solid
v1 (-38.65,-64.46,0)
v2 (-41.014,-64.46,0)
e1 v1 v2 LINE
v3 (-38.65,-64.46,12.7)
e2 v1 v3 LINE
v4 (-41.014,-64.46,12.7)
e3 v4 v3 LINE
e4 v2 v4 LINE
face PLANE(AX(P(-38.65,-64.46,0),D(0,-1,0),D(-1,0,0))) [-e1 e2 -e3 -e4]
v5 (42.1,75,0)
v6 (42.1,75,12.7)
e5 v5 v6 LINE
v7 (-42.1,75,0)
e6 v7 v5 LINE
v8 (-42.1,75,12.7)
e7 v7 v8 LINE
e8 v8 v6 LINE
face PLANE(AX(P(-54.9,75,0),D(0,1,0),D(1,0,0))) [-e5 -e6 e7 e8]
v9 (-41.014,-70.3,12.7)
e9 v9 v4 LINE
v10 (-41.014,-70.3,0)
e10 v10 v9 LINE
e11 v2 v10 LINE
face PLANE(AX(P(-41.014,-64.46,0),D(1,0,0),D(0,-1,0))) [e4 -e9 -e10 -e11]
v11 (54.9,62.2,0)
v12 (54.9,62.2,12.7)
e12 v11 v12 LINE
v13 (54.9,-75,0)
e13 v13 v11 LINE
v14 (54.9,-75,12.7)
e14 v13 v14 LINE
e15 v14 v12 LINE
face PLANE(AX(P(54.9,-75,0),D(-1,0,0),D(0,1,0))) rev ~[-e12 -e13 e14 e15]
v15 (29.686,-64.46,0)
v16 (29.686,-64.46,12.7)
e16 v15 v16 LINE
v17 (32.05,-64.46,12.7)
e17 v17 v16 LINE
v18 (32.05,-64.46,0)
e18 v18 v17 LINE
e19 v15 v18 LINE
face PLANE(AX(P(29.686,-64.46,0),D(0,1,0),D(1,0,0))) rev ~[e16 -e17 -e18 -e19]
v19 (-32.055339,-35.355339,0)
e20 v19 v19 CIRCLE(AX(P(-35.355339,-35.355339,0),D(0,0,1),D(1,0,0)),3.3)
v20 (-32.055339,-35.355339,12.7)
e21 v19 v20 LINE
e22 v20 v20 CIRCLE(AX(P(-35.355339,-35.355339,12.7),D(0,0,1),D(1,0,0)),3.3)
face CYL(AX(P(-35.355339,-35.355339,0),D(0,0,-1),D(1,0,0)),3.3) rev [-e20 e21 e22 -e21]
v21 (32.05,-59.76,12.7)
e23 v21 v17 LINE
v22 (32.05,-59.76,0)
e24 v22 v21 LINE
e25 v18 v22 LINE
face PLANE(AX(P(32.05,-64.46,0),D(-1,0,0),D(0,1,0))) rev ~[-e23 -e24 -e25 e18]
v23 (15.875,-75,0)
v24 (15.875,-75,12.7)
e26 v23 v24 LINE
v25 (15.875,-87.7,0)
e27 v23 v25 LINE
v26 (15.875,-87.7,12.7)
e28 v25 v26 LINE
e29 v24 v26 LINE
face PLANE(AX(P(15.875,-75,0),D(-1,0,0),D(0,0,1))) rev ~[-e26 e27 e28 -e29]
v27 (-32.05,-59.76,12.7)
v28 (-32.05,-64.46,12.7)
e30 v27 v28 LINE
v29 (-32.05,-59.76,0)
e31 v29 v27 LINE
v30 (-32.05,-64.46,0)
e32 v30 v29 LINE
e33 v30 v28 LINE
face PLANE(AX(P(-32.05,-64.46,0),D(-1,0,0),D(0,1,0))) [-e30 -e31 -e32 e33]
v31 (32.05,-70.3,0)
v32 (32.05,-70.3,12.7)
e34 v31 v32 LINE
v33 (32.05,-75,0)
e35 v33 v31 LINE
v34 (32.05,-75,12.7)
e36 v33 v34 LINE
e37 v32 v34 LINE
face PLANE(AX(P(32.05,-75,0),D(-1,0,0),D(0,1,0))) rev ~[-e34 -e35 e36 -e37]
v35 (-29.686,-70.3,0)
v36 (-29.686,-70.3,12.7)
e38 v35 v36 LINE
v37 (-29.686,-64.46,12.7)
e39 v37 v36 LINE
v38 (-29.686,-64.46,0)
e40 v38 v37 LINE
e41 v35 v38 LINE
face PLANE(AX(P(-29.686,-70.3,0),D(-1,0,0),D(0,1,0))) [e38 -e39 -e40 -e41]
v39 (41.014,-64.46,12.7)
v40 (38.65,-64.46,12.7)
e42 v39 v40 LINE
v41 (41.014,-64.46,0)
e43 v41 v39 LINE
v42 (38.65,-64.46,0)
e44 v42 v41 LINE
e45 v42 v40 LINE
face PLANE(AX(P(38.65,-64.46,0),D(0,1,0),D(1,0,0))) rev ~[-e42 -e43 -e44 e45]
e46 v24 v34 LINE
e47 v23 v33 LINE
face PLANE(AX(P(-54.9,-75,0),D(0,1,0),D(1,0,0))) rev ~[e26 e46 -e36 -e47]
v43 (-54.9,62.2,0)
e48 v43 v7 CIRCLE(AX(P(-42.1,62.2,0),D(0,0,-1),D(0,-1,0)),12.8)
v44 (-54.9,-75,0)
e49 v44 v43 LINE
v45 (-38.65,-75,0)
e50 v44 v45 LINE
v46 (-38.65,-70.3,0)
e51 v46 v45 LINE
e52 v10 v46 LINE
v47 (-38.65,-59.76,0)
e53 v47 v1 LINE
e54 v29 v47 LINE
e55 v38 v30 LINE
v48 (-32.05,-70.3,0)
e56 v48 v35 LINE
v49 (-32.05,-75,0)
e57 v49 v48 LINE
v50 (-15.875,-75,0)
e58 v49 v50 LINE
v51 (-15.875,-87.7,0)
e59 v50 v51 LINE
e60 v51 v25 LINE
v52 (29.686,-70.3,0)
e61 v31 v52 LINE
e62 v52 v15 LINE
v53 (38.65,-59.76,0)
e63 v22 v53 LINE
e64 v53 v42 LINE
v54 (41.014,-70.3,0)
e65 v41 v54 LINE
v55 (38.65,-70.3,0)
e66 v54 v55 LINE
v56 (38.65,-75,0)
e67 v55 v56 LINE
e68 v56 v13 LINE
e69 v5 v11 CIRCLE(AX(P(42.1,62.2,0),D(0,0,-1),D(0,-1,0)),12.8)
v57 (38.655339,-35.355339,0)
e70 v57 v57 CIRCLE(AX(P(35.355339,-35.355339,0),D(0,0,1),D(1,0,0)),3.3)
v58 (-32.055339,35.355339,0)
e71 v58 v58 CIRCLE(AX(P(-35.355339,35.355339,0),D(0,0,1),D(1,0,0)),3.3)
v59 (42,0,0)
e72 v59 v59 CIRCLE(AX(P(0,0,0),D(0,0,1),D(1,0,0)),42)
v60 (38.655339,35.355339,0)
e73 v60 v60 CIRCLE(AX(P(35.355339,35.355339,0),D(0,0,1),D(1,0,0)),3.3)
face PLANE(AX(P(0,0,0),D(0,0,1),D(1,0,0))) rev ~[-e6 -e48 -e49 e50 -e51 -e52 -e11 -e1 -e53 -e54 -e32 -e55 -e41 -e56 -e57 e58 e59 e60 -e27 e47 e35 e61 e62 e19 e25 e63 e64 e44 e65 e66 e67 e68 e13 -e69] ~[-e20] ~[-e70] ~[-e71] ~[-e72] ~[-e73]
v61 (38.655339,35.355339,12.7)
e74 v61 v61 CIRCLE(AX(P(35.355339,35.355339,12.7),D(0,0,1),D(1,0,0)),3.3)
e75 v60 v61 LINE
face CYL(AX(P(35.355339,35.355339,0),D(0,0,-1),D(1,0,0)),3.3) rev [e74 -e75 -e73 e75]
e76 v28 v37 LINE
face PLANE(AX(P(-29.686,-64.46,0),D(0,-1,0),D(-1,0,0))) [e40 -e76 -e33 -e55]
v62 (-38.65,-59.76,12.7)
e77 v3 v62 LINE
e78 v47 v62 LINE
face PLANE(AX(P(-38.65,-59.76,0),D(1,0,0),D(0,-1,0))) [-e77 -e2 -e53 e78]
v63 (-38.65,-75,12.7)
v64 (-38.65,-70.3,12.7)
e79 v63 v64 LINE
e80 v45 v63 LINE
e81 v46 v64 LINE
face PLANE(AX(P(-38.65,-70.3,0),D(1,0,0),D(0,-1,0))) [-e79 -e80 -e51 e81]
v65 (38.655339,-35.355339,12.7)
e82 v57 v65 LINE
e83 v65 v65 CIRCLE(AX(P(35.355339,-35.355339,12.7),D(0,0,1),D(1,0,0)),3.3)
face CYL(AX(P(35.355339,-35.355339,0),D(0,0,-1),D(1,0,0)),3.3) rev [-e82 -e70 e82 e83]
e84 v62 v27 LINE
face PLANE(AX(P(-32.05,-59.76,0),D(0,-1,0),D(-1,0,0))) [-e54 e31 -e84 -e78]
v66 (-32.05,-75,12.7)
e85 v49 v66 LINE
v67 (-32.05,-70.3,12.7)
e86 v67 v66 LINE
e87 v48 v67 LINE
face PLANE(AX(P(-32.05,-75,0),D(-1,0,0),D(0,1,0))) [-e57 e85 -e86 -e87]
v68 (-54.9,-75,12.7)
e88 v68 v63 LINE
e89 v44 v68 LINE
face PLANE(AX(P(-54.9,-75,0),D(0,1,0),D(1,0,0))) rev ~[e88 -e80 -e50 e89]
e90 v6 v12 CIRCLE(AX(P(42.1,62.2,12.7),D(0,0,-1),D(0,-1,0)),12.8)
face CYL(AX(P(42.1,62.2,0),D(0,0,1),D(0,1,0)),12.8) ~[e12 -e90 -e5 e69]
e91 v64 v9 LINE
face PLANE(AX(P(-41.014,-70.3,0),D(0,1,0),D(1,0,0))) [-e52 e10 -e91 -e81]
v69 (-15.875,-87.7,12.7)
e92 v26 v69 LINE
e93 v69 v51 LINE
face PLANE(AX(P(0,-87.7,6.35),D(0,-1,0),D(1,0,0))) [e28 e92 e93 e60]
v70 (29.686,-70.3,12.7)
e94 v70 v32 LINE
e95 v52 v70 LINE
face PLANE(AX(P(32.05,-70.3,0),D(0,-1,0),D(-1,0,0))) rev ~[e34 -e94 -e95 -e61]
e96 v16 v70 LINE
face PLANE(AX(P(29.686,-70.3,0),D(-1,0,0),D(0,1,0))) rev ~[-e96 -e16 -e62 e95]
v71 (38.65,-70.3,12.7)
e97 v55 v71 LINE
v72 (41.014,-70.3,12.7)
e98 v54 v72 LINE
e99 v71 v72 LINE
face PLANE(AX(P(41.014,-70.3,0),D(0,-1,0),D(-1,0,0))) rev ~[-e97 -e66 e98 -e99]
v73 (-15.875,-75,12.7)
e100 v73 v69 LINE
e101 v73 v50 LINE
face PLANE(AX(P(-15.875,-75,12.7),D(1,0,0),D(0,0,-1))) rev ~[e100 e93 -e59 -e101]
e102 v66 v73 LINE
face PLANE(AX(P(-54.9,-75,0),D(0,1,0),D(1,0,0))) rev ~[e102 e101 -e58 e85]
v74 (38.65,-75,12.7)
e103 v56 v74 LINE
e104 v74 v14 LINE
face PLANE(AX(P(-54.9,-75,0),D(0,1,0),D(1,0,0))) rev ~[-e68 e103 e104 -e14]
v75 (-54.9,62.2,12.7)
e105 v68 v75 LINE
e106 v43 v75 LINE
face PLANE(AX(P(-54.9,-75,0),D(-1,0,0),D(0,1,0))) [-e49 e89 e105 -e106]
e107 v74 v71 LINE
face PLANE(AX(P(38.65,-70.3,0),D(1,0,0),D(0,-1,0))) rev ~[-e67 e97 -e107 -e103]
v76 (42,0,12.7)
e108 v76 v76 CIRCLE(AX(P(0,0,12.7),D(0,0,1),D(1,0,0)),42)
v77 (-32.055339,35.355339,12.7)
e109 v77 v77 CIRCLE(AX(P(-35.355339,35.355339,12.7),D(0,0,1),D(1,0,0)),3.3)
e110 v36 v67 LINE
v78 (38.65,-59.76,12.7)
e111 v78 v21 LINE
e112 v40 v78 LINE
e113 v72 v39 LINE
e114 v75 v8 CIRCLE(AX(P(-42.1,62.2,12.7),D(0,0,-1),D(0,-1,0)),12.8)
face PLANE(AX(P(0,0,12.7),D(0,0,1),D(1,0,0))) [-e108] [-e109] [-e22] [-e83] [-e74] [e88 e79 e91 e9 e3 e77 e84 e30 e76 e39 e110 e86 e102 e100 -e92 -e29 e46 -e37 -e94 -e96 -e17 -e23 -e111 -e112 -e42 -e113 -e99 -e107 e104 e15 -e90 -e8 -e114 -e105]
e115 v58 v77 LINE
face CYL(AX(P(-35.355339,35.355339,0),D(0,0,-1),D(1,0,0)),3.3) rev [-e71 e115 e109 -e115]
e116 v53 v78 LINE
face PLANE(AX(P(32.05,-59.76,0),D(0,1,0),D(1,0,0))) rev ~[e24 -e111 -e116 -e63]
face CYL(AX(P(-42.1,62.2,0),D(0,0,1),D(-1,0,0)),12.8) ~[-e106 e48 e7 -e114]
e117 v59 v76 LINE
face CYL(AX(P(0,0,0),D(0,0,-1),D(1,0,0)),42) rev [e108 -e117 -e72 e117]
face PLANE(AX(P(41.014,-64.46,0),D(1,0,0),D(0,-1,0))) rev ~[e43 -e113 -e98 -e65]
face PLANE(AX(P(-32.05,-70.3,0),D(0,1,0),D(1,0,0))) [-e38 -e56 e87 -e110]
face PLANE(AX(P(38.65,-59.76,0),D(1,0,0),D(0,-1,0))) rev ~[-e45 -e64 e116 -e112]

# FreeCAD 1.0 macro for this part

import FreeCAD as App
import Part
import Sketcher
Q = App.Units.Quantity


def edges_at(feature, points):
    """Names of the edges that pass closest to the given points."""
    edges = feature.Shape.Edges
    near = lambda p: min(range(len(edges)), key=lambda i: edges[i].distToShape(Part.Vertex(*p))[0])
    return sorted({f"Edge{near(p) + 1}" for p in points})

doc = App.newDocument("Part")
body = doc.addObject("PartDesign::Body", "Body")

# Sketch on XY plane
sketch1 = body.newObject("Sketcher::SketchObject", "Sketch")
sketch1.AttachmentSupport = (doc.getObject("XY_Plane"), [""])
sketch1.MapMode = "FlatFace"
sketch1.addGeometry(Part.LineSegment(App.Vector(-54.9, 75, 0), App.Vector(-54.9, -75, 0)), False)
sketch1.addGeometry(Part.LineSegment(App.Vector(-54.9, -75, 0), App.Vector(54.9, -75, 0)), False)
sketch1.addGeometry(Part.LineSegment(App.Vector(54.9, -75, 0), App.Vector(54.9, 75, 0)), False)
sketch1.addGeometry(Part.LineSegment(App.Vector(54.9, 75, 0), App.Vector(-54.9, 75, 0)), False)
sketch1.addGeometry(Part.Circle(App.Vector(-35.4, -35.4, 0), App.Vector(0, 0, 1), 3.3), False)
sketch1.addGeometry(Part.Circle(App.Vector(35.4, -35.4, 0), App.Vector(0, 0, 1), 3.3), False)
sketch1.addGeometry(Part.Circle(App.Vector(-35.4, 35.4, 0), App.Vector(0, 0, 1), 3.3), False)
sketch1.addGeometry(Part.Circle(App.Vector(0, 0, 0), App.Vector(0, 0, 1), 42), False)
sketch1.addGeometry(Part.Circle(App.Vector(35.4, 35.4, 0), App.Vector(0, 0, 1), 3.3), False)
sketch1.addConstraint(Sketcher.Constraint("Coincident", 0, 2, 1, 1))
sketch1.addConstraint(Sketcher.Constraint("Coincident", 1, 2, 2, 1))
sketch1.addConstraint(Sketcher.Constraint("Coincident", 2, 2, 3, 1))
sketch1.addConstraint(Sketcher.Constraint("Coincident", 3, 2, 0, 1))
sketch1.addConstraint(Sketcher.Constraint("Vertical", 0))
sketch1.addConstraint(Sketcher.Constraint("Horizontal", 1))
sketch1.addConstraint(Sketcher.Constraint("Vertical", 2))
sketch1.addConstraint(Sketcher.Constraint("Horizontal", 3))
sketch1.addConstraint(Sketcher.Constraint("Coincident", 7, 3, -1, 1))
sketch1.addConstraint(Sketcher.Constraint("Equal", 4, 5))
sketch1.addConstraint(Sketcher.Constraint("Equal", 5, 6))
sketch1.addConstraint(Sketcher.Constraint("Equal", 6, 8))
sketch1.addConstraint(Sketcher.Constraint("Symmetric", 5, 3, 6, 3, -1, 1))
sketch1.addConstraint(Sketcher.Constraint("Symmetric", 4, 3, 8, 3, -1, 1))
sketch1.addConstraint(Sketcher.Constraint("Symmetric", 0, 2, 2, 2, -1, 1))
sketch1.addConstraint(Sketcher.Constraint("Symmetric", 4, 3, 5, 3, -2))
sketch1.addConstraint(Sketcher.Constraint("Diameter", 7, Q("84 mm")))
sketch1.addConstraint(Sketcher.Constraint("Diameter", 4, Q("6.6 mm")))
sketch1.addConstraint(Sketcher.Constraint("DistanceY", 0, 2, 0, 1, Q("150 mm")))
sketch1.addConstraint(Sketcher.Constraint("DistanceX", 1, 1, 1, 2, Q("109.8 mm")))
sketch1.addConstraint(Sketcher.Constraint("DistanceX", 4, 3, -1, 1, Q("35.355339 mm")))
sketch1.addConstraint(Sketcher.Constraint("DistanceY", 4, 3, -1, 1, Q("35.355339 mm")))
pad1 = body.newObject("PartDesign::Pad", "Pad")
pad1.Profile = sketch1
pad1.Length = 12.7

# Sketch on XY plane
sketch2 = body.newObject("Sketcher::SketchObject", "Sketch001")
sketch2.AttachmentSupport = (doc.getObject("XY_Plane"), [""])
sketch2.MapMode = "FlatFace"
sketch2.addGeometry(Part.LineSegment(App.Vector(38.6, -75, 0), App.Vector(32, -75, 0)), False)
sketch2.addGeometry(Part.LineSegment(App.Vector(32, -75, 0), App.Vector(32, -70.3, 0)), False)
sketch2.addGeometry(Part.LineSegment(App.Vector(32, -70.3, 0), App.Vector(29.7, -70.3, 0)), False)
sketch2.addGeometry(Part.LineSegment(App.Vector(29.7, -70.3, 0), App.Vector(29.7, -64.5, 0)), False)
sketch2.addGeometry(Part.LineSegment(App.Vector(29.7, -64.5, 0), App.Vector(32, -64.5, 0)), False)
sketch2.addGeometry(Part.LineSegment(App.Vector(32, -64.5, 0), App.Vector(32, -59.8, 0)), False)
sketch2.addGeometry(Part.LineSegment(App.Vector(32, -59.8, 0), App.Vector(38.6, -59.8, 0)), False)
sketch2.addGeometry(Part.LineSegment(App.Vector(38.6, -59.8, 0), App.Vector(38.6, -64.5, 0)), False)
sketch2.addGeometry(Part.LineSegment(App.Vector(38.6, -64.5, 0), App.Vector(41, -64.5, 0)), False)
sketch2.addGeometry(Part.LineSegment(App.Vector(41, -64.5, 0), App.Vector(41, -70.3, 0)), False)
sketch2.addGeometry(Part.LineSegment(App.Vector(41, -70.3, 0), App.Vector(38.6, -70.3, 0)), False)
sketch2.addGeometry(Part.LineSegment(App.Vector(38.6, -70.3, 0), App.Vector(38.6, -75, 0)), False)
sketch2.addGeometry(Part.LineSegment(App.Vector(-32, -70.3, 0), App.Vector(-32, -75, 0)), False)
sketch2.addGeometry(Part.LineSegment(App.Vector(-32, -75, 0), App.Vector(-38.6, -75, 0)), False)
sketch2.addGeometry(Part.LineSegment(App.Vector(-38.6, -75, 0), App.Vector(-38.6, -70.3, 0)), False)
sketch2.addGeometry(Part.LineSegment(App.Vector(-38.6, -70.3, 0), App.Vector(-41, -70.3, 0)), False)
sketch2.addGeometry(Part.LineSegment(App.Vector(-41, -70.3, 0), App.Vector(-41, -64.5, 0)), False)
sketch2.addGeometry(Part.LineSegment(App.Vector(-41, -64.5, 0), App.Vector(-38.6, -64.5, 0)), False)
sketch2.addGeometry(Part.LineSegment(App.Vector(-38.6, -64.5, 0), App.Vector(-38.6, -59.8, 0)), False)
sketch2.addGeometry(Part.LineSegment(App.Vector(-38.6, -59.8, 0), App.Vector(-32, -59.8, 0)), False)
sketch2.addGeometry(Part.LineSegment(App.Vector(-32, -59.8, 0), App.Vector(-32, -64.5, 0)), False)
sketch2.addGeometry(Part.LineSegment(App.Vector(-32, -64.5, 0), App.Vector(-29.7, -64.5, 0)), False)
sketch2.addGeometry(Part.LineSegment(App.Vector(-29.7, -64.5, 0), App.Vector(-29.7, -70.3, 0)), False)
sketch2.addGeometry(Part.LineSegment(App.Vector(-29.7, -70.3, 0), App.Vector(-32, -70.3, 0)), False)
sketch2.addConstraint(Sketcher.Constraint("Coincident", 0, 2, 1, 1))
sketch2.addConstraint(Sketcher.Constraint("Coincident", 1, 2, 2, 1))
sketch2.addConstraint(Sketcher.Constraint("Coincident", 2, 2, 3, 1))
sketch2.addConstraint(Sketcher.Constraint("Coincident", 3, 2, 4, 1))
sketch2.addConstraint(Sketcher.Constraint("Coincident", 4, 2, 5, 1))
sketch2.addConstraint(Sketcher.Constraint("Coincident", 5, 2, 6, 1))
sketch2.addConstraint(Sketcher.Constraint("Coincident", 6, 2, 7, 1))
sketch2.addConstraint(Sketcher.Constraint("Coincident", 7, 2, 8, 1))
sketch2.addConstraint(Sketcher.Constraint("Coincident", 8, 2, 9, 1))
sketch2.addConstraint(Sketcher.Constraint("Coincident", 9, 2, 10, 1))
sketch2.addConstraint(Sketcher.Constraint("Coincident", 10, 2, 11, 1))
sketch2.addConstraint(Sketcher.Constraint("Coincident", 11, 2, 0, 1))
sketch2.addConstraint(Sketcher.Constraint("Coincident", 12, 2, 13, 1))
sketch2.addConstraint(Sketcher.Constraint("Coincident", 13, 2, 14, 1))
sketch2.addConstraint(Sketcher.Constraint("Coincident", 14, 2, 15, 1))
sketch2.addConstraint(Sketcher.Constraint("Coincident", 15, 2, 16, 1))
sketch2.addConstraint(Sketcher.Constraint("Coincident", 16, 2, 17, 1))
sketch2.addConstraint(Sketcher.Constraint("Coincident", 17, 2, 18, 1))
sketch2.addConstraint(Sketcher.Constraint("Coincident", 18, 2, 19, 1))
sketch2.addConstraint(Sketcher.Constraint("Coincident", 19, 2, 20, 1))
sketch2.addConstraint(Sketcher.Constraint("Coincident", 20, 2, 21, 1))
sketch2.addConstraint(Sketcher.Constraint("Coincident", 21, 2, 22, 1))
sketch2.addConstraint(Sketcher.Constraint("Coincident", 22, 2, 23, 1))
sketch2.addConstraint(Sketcher.Constraint("Coincident", 23, 2, 12, 1))
sketch2.addConstraint(Sketcher.Constraint("Horizontal", 0))
sketch2.addConstraint(Sketcher.Constraint("Vertical", 1))
sketch2.addConstraint(Sketcher.Constraint("Horizontal", 2))
sketch2.addConstraint(Sketcher.Constraint("Vertical", 3))
sketch2.addConstraint(Sketcher.Constraint("Horizontal", 4))
sketch2.addConstraint(Sketcher.Constraint("Vertical", 5))
sketch2.addConstraint(Sketcher.Constraint("Horizontal", 6))
sketch2.addConstraint(Sketcher.Constraint("Vertical", 7))
sketch2.addConstraint(Sketcher.Constraint("Horizontal", 8))
sketch2.addConstraint(Sketcher.Constraint("Vertical", 9))
sketch2.addConstraint(Sketcher.Constraint("Horizontal", 10))
sketch2.addConstraint(Sketcher.Constraint("Vertical", 11))
sketch2.addConstraint(Sketcher.Constraint("Vertical", 12))
sketch2.addConstraint(Sketcher.Constraint("Horizontal", 13))
sketch2.addConstraint(Sketcher.Constraint("Vertical", 14))
sketch2.addConstraint(Sketcher.Constraint("Horizontal", 15))
sketch2.addConstraint(Sketcher.Constraint("Vertical", 16))
sketch2.addConstraint(Sketcher.Constraint("Horizontal", 17))
sketch2.addConstraint(Sketcher.Constraint("Vertical", 18))
sketch2.addConstraint(Sketcher.Constraint("Horizontal", 19))
sketch2.addConstraint(Sketcher.Constraint("Vertical", 20))
sketch2.addConstraint(Sketcher.Constraint("Horizontal", 21))
sketch2.addConstraint(Sketcher.Constraint("Vertical", 22))
sketch2.addConstraint(Sketcher.Constraint("Horizontal", 23))
sketch2.addConstraint(Sketcher.Constraint("Symmetric", 0, 2, 12, 2, -2))
sketch2.addConstraint(Sketcher.Constraint("Symmetric", 10, 2, 14, 2, -2))
sketch2.addConstraint(Sketcher.Constraint("Symmetric", 8, 2, 16, 2, -2))
sketch2.addConstraint(Sketcher.Constraint("Symmetric", 6, 2, 18, 2, -2))
sketch2.addConstraint(Sketcher.Constraint("Symmetric", 4, 2, 20, 2, -2))
sketch2.addConstraint(Sketcher.Constraint("Symmetric", 2, 2, 22, 2, -2))
sketch2.addConstraint(Sketcher.Constraint("Horizontal", 4, 2, 7, 2))
sketch2.addConstraint(Sketcher.Constraint("Horizontal", 2, 2, 9, 2))
sketch2.addConstraint(Sketcher.Constraint("Vertical", 1, 2, 4, 2))
sketch2.addConstraint(Sketcher.Constraint("Vertical", 7, 2, 10, 2))
sketch2.addConstraint(Sketcher.Constraint("Equal", 4, 8))
sketch2.addConstraint(Sketcher.Constraint("Equal", 1, 5))
sketch2.addConstraint(Sketcher.Constraint("DistanceX", 0, 2, 0, 1, Q("6.6 mm")))
sketch2.addConstraint(Sketcher.Constraint("DistanceY", 1, 1, 1, 2, Q("4.7 mm")))
sketch2.addConstraint(Sketcher.Constraint("DistanceY", 0, 2, -1, 1, Q("75 mm")))
sketch2.addConstraint(Sketcher.Constraint("DistanceY", 3, 1, 3, 2, Q("5.84 mm")))
sketch2.addConstraint(Sketcher.Constraint("DistanceX", 12, 2, 0, 2, Q("64.1 mm")))
sketch2.addConstraint(Sketcher.Constraint("DistanceX", 2, 2, 2, 1, Q("2.364 mm")))
pocket1 = body.newObject("PartDesign::Pocket", "Pocket")
pocket1.Profile = sketch2
pocket1.Type = "ThroughAll"
pocket1.Reversed = True

# Sketch on XZ plane
sketch3 = body.newObject("Sketcher::SketchObject", "Sketch002")
sketch3.AttachmentSupport = (doc.getObject("XZ_Plane"), [""])
sketch3.MapMode = "FlatFace"
sketch3.AttachmentOffset = App.Placement(App.Vector(0, 0, 75), App.Rotation())
sketch3.addGeometry(Part.LineSegment(App.Vector(16, 0, 0), App.Vector(16, 13, 0)), False)
sketch3.addGeometry(Part.LineSegment(App.Vector(16, 13, 0), App.Vector(-16, 13, 0)), False)
sketch3.addGeometry(Part.LineSegment(App.Vector(-16, 13, 0), App.Vector(-16, 0, 0)), False)
sketch3.addGeometry(Part.LineSegment(App.Vector(-16, 0, 0), App.Vector(16, 0, 0)), False)
sketch3.addConstraint(Sketcher.Constraint("Coincident", 0, 2, 1, 1))
sketch3.addConstraint(Sketcher.Constraint("Coincident", 1, 2, 2, 1))
sketch3.addConstraint(Sketcher.Constraint("Coincident", 2, 2, 3, 1))
sketch3.addConstraint(Sketcher.Constraint("Coincident", 3, 2, 0, 1))
sketch3.addConstraint(Sketcher.Constraint("Vertical", 0))
sketch3.addConstraint(Sketcher.Constraint("Horizontal", 1))
sketch3.addConstraint(Sketcher.Constraint("Vertical", 2))
sketch3.addConstraint(Sketcher.Constraint("Horizontal", 3))
sketch3.addConstraint(Sketcher.Constraint("Symmetric", 2, 2, 3, 2, -1, 1))
sketch3.addConstraint(Sketcher.Constraint("DistanceY", 0, 1, 0, 2, Q("12.7 mm")))
sketch3.addConstraint(Sketcher.Constraint("DistanceX", 1, 2, 1, 1, Q("31.75 mm")))
pad2 = body.newObject("PartDesign::Pad", "Pad001")
pad2.Profile = sketch3
pad2.Length = 12.7
doc.recompute()

fillet = body.newObject("PartDesign::Fillet", "Fillet")
fillet.Base = (pad2, edges_at(pad2, [(-54.9, 75, 6.35), (54.9, 75, 6.35)]))
fillet.Radius = 12.8

doc.recompute()
